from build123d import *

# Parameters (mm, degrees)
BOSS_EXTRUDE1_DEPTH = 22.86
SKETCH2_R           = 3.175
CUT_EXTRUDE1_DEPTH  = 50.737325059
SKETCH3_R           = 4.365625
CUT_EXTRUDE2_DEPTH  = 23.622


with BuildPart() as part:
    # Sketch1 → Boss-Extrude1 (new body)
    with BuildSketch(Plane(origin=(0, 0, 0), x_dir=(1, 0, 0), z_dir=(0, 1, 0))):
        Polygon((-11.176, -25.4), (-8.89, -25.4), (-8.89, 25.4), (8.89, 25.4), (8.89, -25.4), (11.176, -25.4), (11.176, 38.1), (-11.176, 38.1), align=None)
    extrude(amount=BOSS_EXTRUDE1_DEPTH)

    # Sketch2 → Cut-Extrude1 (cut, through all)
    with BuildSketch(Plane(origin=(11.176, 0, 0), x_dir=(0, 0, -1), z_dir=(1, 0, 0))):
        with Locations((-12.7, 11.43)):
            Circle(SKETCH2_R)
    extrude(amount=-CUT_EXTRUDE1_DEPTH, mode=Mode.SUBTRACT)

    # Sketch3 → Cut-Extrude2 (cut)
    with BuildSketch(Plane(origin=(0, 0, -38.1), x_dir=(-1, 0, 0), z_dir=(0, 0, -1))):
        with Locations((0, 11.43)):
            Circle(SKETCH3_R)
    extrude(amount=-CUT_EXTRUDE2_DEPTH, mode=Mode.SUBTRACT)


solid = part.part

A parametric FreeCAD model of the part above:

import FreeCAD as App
import Part
import Sketcher
from FreeCAD import Vector
Q = App.Units.Quantity

doc = App.newDocument("Part")
body = doc.addObject("PartDesign::Body", "Body")

# Sketch on XZ plane
sketch1 = body.newObject("Sketcher::SketchObject", "Sketch")
sketch1.AttachmentSupport = (doc.getObject("XZ_Plane"), [""])
sketch1.MapMode = "FlatFace"
sketch1.addGeometry(Part.LineSegment(Vector(-11.2, 25.4, 0), Vector(-8.9, 25.4, 0)), False)
sketch1.addGeometry(Part.LineSegment(Vector(-8.9, 25.4, 0), Vector(-8.9, -25.4, 0)), False)
sketch1.addGeometry(Part.LineSegment(Vector(-8.9, -25.4, 0), Vector(8.9, -25.4, 0)), False)
sketch1.addGeometry(Part.LineSegment(Vector(8.9, -25.4, 0), Vector(8.9, 25.4, 0)), False)
sketch1.addGeometry(Part.LineSegment(Vector(8.9, 25.4, 0), Vector(11.2, 25.4, 0)), False)
sketch1.addGeometry(Part.LineSegment(Vector(11.2, 25.4, 0), Vector(11.2, -38.1, 0)), False)
sketch1.addGeometry(Part.LineSegment(Vector(11.2, -38.1, 0), Vector(-11.2, -38.1, 0)), False)
sketch1.addGeometry(Part.LineSegment(Vector(-11.2, -38.1, 0), Vector(-11.2, 25.4, 0)), False)
sketch1.addConstraint(Sketcher.Constraint("Coincident", 0, 2, 1, 1))
sketch1.addConstraint(Sketcher.Constraint("Coincident", 1, 2, 2, 1))
sketch1.addConstraint(Sketcher.Constraint("Coincident", 2, 2, 3, 1))
sketch1.addConstraint(Sketcher.Constraint("Coincident", 3, 2, 4, 1))
sketch1.addConstraint(Sketcher.Constraint("Coincident", 4, 2, 5, 1))
sketch1.addConstraint(Sketcher.Constraint("Coincident", 5, 2, 6, 1))
sketch1.addConstraint(Sketcher.Constraint("Coincident", 6, 2, 7, 1))
sketch1.addConstraint(Sketcher.Constraint("Coincident", 7, 2, 0, 1))
sketch1.addConstraint(Sketcher.Constraint("Horizontal", 0))
sketch1.addConstraint(Sketcher.Constraint("Vertical", 1))
sketch1.addConstraint(Sketcher.Constraint("Horizontal", 2))
sketch1.addConstraint(Sketcher.Constraint("Vertical", 3))
sketch1.addConstraint(Sketcher.Constraint("Horizontal", 4))
sketch1.addConstraint(Sketcher.Constraint("Vertical", 5))
sketch1.addConstraint(Sketcher.Constraint("Horizontal", 6))
sketch1.addConstraint(Sketcher.Constraint("Vertical", 7))
sketch1.addConstraint(Sketcher.Constraint("Symmetric", 0, 2, 2, 2, -1, 1))
sketch1.addConstraint(Sketcher.Constraint("Symmetric", 4, 2, 7, 2, -2))
sketch1.addConstraint(Sketcher.Constraint("DistanceY", 1, 2, 1, 1, Q("2 in")))
sketch1.addConstraint(Sketcher.Constraint("DistanceX", 2, 1, 2, 2, Q("0.7 in")))
sketch1.addConstraint(Sketcher.Constraint("DistanceY", 5, 2, 5, 1, Q("2.5 in")))
sketch1.addConstraint(Sketcher.Constraint("DistanceX", 0, 1, 0, 2, Q("0.09 in")))
pad1 = body.newObject("PartDesign::Pad", "Pad")
pad1.Profile = sketch1
pad1.Length = Q("0.9 in")
pad1.Reversed = True

# Sketch on YZ plane
sketch2 = body.newObject("Sketcher::SketchObject", "Sketch001")
sketch2.AttachmentSupport = (doc.getObject("YZ_Plane"), [""])
sketch2.MapMode = "FlatFace"
sketch2.AttachmentOffset = App.Placement(Vector(0, 0, 0.44 * 25.4), App.Rotation())
sketch2.addGeometry(Part.Circle(Vector(11.4, 12.7, 0), Vector(0, 0, 1), 3.2), False)
sketch2.addConstraint(Sketcher.Constraint("Diameter", 0, Q("0.25 in")))
sketch2.addConstraint(Sketcher.Constraint("DistanceY", -1, 1, 0, 3, Q("0.5 in")))
sketch2.addConstraint(Sketcher.Constraint("DistanceX", -1, 1, 0, 3, Q("0.45 in")))
pocket1 = body.newObject("PartDesign::Pocket", "Pocket")
pocket1.Profile = sketch2
pocket1.Type = "ThroughAll"

# Sketch on XY plane
sketch3 = body.newObject("Sketcher::SketchObject", "Sketch002")
sketch3.AttachmentSupport = (doc.getObject("XY_Plane"), [""])
sketch3.MapMode = "FlatFace"
sketch3.AttachmentOffset = App.Placement(Vector(0, 0, -1.5 * 25.4), App.Rotation())
sketch3.addGeometry(Part.Circle(Vector(0, 11.4, 0), Vector(0, 0, 1), 4.4), False)
sketch3.addConstraint(Sketcher.Constraint("PointOnObject", 0, 3, -2))
sketch3.addConstraint(Sketcher.Constraint("Diameter", 0, Q("0.34375 in")))
sketch3.addConstraint(Sketcher.Constraint("DistanceY", -1, 1, 0, 3, Q("0.45 in")))
pocket2 = body.newObject("PartDesign::Pocket", "Pocket001")
pocket2.Profile = sketch3
pocket2.Length = Q("0.93 in")
pocket2.Reversed = True

doc.recompute()
